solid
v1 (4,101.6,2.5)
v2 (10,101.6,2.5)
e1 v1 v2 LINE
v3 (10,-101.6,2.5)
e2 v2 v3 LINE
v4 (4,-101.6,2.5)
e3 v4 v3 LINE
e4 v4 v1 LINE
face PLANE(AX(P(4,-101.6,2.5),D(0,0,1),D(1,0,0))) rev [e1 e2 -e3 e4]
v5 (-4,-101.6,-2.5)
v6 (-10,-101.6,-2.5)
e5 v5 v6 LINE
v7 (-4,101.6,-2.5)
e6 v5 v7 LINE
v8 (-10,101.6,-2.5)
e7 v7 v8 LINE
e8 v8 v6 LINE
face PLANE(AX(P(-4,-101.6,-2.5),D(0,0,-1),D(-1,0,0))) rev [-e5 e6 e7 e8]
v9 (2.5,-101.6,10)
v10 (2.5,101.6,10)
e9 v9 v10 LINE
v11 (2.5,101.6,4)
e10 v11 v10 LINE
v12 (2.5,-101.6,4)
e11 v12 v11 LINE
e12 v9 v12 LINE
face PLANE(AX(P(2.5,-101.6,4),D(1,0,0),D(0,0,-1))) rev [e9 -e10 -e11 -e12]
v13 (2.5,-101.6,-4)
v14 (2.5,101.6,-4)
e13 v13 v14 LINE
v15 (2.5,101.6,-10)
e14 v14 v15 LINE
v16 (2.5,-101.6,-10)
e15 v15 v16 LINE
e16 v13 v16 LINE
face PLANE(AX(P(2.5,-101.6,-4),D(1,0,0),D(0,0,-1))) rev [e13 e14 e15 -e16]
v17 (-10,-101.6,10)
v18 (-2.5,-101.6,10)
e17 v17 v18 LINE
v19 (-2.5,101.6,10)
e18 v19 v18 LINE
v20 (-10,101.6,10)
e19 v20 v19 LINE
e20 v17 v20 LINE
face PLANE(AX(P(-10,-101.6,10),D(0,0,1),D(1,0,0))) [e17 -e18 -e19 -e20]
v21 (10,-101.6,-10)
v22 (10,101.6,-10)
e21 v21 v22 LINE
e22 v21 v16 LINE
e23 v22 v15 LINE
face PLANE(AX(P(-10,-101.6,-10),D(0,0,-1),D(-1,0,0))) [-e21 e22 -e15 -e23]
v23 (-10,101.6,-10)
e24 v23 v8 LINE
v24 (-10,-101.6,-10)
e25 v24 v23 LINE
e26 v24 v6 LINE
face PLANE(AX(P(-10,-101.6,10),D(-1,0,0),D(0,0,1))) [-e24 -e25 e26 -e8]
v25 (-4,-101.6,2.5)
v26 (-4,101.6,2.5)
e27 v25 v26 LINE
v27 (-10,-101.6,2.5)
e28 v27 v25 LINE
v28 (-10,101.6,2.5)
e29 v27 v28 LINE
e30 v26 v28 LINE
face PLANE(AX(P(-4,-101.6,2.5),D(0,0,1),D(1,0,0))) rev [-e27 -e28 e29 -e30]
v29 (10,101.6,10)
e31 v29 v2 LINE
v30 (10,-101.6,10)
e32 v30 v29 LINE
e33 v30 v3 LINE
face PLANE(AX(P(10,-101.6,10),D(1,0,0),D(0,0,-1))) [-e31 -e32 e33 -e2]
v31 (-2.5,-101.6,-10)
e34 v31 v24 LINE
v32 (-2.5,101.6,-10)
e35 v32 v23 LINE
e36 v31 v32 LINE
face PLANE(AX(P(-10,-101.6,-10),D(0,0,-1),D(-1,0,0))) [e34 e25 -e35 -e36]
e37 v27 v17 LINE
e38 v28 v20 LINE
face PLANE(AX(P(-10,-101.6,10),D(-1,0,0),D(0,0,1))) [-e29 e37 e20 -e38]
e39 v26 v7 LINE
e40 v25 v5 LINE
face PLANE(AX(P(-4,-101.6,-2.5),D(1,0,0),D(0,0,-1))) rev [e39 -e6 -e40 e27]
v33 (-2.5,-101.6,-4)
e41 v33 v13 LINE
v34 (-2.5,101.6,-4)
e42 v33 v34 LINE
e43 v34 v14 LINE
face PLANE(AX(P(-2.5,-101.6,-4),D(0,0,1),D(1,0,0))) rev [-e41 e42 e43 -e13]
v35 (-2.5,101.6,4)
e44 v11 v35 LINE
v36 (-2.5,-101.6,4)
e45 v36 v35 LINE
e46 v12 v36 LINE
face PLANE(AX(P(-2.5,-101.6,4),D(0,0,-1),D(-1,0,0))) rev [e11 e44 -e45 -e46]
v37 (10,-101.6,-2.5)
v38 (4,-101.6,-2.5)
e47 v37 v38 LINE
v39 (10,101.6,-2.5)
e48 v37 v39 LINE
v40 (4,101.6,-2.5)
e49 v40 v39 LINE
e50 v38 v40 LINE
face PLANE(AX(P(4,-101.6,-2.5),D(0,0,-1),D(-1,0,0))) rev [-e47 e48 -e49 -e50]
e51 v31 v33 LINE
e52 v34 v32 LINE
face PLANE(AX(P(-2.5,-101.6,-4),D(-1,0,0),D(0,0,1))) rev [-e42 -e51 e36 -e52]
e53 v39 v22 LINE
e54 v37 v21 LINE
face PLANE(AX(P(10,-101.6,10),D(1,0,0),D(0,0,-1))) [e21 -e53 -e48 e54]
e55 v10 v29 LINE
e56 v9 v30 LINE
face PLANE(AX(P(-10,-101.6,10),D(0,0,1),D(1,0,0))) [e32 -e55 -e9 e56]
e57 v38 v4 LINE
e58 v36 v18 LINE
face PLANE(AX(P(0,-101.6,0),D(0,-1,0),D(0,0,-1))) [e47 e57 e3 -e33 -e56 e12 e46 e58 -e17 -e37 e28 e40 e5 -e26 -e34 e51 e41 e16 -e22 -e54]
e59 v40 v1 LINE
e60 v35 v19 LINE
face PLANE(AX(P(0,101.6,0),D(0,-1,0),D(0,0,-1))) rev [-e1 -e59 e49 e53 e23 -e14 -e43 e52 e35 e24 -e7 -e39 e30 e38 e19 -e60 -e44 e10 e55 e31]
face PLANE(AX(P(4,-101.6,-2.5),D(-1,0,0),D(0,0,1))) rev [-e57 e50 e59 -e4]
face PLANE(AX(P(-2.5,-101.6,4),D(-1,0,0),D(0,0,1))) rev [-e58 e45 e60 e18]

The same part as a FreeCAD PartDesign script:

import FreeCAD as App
import Part
import Sketcher
from FreeCAD import Vector
Q = App.Units.Quantity


def add_polygon(sketch, points):
    """Adds a closed chain of lines whose ends are joined by coincident constraints."""
    first, n = sketch.GeometryCount, len(points)
    for a, b in zip(points, points[1:] + points[:1]):
        sketch.addGeometry(Part.LineSegment(App.Vector(*a, 0), App.Vector(*b, 0)), False)
    for i in range(n):
        sketch.addConstraint(Sketcher.Constraint("Coincident", first + i, 2, first + (i + 1) % n, 1))

doc = App.newDocument("Part")
params = doc.addObject("Spreadsheet::Sheet", "Params")
for row, (alias, value) in enumerate([
    ("sketch1_width", "20 mm"),
    ("pad1_length", "101.6 mm"),
    ("pad1_length2", "101.6 mm"),
    ("sketch2_width", "5 mm"),
    ("sketch2_width2", "12 mm"),
], start=1):
    params.set(f"A{row}", alias)
    params.set(f"B{row}", "=" + value)
    params.setAlias(f"B{row}", alias)

body = doc.addObject("PartDesign::Body", "Body")

# Sketch on XZ plane
sketch1 = body.newObject("Sketcher::SketchObject", "Sketch")
sketch1.AttachmentSupport = (doc.getObject("XZ_Plane"), [""])
sketch1.MapMode = "FlatFace"
add_polygon(sketch1, [(-10, -10), (-10, 10), (10, 10), (10, -10)])  # lines 0-3
sketch1.addConstraint([
    Sketcher.Constraint("Vertical", 0),
    Sketcher.Constraint("Horizontal", 1),
    Sketcher.Constraint("Vertical", 2),
    Sketcher.Constraint("Horizontal", 3),
    Sketcher.Constraint("Symmetric", 0, 2, 2, 2, -1, 1),
    Sketcher.Constraint("Equal", 3, 0),
    Sketcher.Constraint("DistanceX", 1, 1, 1, 2, Q("20 mm")),
])
sketch1.setExpression("Constraints[10]", "Params.sketch1_width")
pad1 = body.newObject("PartDesign::Pad", "Pad")
pad1.Profile = sketch1
pad1.Type = "TwoLengths"
pad1.setExpression("Length", "Params.pad1_length")
pad1.setExpression("Length2", "Params.pad1_length2")
pad1.Reversed = True

# Sketch on XZ plane
sketch2 = body.newObject("Sketcher::SketchObject", "Sketch001")
sketch2.AttachmentSupport = (doc.getObject("XZ_Plane"), [""])
sketch2.MapMode = "FlatFace"
add_polygon(sketch2, [(-2, -16), (-2, -4), (2, -4), (2, -16)])  # lines 0-3
add_polygon(sketch2, [(4, -2), (4, 2), (16, 2), (16, -2)])  # lines 4-7
add_polygon(sketch2, [(-16, -2), (-16, 2), (-4, 2), (-4, -2)])  # lines 8-11
add_polygon(sketch2, [(-2, 4), (-2, 16), (2, 16), (2, 4)])  # lines 12-15
sketch2.addConstraint([
    Sketcher.Constraint("Vertical", 0),
    Sketcher.Constraint("Horizontal", 1),
    Sketcher.Constraint("Vertical", 2),
    Sketcher.Constraint("Horizontal", 3),
    Sketcher.Constraint("Vertical", 4),
    Sketcher.Constraint("Horizontal", 5),
    Sketcher.Constraint("Vertical", 6),
    Sketcher.Constraint("Horizontal", 7),
    Sketcher.Constraint("Vertical", 8),
    Sketcher.Constraint("Horizontal", 9),
    Sketcher.Constraint("Vertical", 10),
    Sketcher.Constraint("Horizontal", 11),
    Sketcher.Constraint("Vertical", 12),
    Sketcher.Constraint("Horizontal", 13),
    Sketcher.Constraint("Vertical", 14),
    Sketcher.Constraint("Horizontal", 15),
    Sketcher.Constraint("Symmetric", 6, 2, 8, 2, -1, 1),
    Sketcher.Constraint("Symmetric", 4, 2, 10, 2, -1, 1),
    Sketcher.Constraint("Symmetric", 2, 2, 12, 2, -1, 1),
    Sketcher.Constraint("Symmetric", 0, 2, 14, 2, -1, 1),
    Sketcher.Constraint("Horizontal", 5, 2, 8, 2),
    Sketcher.Constraint("Vertical", 3, 2, 12, 2),
    Sketcher.Constraint("Equal", 11, 0),
    Sketcher.Constraint("Equal", 15, 4),
    Sketcher.Constraint("DistanceX", 1, 1, 1, 2, Q("5 mm")),
    Sketcher.Constraint("DistanceX", 5, 1, 5, 2, Q("12 mm")),
    Sketcher.Constraint("DistanceY", 0, 2, -1, 1, Q("4 mm")),
    Sketcher.Constraint("DistanceX", -1, 1, 4, 2, Q("4 mm")),
])
sketch2.setExpression("Constraints[40]", "Params.sketch2_width")
sketch2.setExpression("Constraints[41]", "Params.sketch2_width2")
pocket1 = body.newObject("PartDesign::Pocket", "Pocket")
pocket1.Profile = sketch2
pocket1.Type = "ThroughAll"
pocket1.Midplane = True

doc.recompute()
